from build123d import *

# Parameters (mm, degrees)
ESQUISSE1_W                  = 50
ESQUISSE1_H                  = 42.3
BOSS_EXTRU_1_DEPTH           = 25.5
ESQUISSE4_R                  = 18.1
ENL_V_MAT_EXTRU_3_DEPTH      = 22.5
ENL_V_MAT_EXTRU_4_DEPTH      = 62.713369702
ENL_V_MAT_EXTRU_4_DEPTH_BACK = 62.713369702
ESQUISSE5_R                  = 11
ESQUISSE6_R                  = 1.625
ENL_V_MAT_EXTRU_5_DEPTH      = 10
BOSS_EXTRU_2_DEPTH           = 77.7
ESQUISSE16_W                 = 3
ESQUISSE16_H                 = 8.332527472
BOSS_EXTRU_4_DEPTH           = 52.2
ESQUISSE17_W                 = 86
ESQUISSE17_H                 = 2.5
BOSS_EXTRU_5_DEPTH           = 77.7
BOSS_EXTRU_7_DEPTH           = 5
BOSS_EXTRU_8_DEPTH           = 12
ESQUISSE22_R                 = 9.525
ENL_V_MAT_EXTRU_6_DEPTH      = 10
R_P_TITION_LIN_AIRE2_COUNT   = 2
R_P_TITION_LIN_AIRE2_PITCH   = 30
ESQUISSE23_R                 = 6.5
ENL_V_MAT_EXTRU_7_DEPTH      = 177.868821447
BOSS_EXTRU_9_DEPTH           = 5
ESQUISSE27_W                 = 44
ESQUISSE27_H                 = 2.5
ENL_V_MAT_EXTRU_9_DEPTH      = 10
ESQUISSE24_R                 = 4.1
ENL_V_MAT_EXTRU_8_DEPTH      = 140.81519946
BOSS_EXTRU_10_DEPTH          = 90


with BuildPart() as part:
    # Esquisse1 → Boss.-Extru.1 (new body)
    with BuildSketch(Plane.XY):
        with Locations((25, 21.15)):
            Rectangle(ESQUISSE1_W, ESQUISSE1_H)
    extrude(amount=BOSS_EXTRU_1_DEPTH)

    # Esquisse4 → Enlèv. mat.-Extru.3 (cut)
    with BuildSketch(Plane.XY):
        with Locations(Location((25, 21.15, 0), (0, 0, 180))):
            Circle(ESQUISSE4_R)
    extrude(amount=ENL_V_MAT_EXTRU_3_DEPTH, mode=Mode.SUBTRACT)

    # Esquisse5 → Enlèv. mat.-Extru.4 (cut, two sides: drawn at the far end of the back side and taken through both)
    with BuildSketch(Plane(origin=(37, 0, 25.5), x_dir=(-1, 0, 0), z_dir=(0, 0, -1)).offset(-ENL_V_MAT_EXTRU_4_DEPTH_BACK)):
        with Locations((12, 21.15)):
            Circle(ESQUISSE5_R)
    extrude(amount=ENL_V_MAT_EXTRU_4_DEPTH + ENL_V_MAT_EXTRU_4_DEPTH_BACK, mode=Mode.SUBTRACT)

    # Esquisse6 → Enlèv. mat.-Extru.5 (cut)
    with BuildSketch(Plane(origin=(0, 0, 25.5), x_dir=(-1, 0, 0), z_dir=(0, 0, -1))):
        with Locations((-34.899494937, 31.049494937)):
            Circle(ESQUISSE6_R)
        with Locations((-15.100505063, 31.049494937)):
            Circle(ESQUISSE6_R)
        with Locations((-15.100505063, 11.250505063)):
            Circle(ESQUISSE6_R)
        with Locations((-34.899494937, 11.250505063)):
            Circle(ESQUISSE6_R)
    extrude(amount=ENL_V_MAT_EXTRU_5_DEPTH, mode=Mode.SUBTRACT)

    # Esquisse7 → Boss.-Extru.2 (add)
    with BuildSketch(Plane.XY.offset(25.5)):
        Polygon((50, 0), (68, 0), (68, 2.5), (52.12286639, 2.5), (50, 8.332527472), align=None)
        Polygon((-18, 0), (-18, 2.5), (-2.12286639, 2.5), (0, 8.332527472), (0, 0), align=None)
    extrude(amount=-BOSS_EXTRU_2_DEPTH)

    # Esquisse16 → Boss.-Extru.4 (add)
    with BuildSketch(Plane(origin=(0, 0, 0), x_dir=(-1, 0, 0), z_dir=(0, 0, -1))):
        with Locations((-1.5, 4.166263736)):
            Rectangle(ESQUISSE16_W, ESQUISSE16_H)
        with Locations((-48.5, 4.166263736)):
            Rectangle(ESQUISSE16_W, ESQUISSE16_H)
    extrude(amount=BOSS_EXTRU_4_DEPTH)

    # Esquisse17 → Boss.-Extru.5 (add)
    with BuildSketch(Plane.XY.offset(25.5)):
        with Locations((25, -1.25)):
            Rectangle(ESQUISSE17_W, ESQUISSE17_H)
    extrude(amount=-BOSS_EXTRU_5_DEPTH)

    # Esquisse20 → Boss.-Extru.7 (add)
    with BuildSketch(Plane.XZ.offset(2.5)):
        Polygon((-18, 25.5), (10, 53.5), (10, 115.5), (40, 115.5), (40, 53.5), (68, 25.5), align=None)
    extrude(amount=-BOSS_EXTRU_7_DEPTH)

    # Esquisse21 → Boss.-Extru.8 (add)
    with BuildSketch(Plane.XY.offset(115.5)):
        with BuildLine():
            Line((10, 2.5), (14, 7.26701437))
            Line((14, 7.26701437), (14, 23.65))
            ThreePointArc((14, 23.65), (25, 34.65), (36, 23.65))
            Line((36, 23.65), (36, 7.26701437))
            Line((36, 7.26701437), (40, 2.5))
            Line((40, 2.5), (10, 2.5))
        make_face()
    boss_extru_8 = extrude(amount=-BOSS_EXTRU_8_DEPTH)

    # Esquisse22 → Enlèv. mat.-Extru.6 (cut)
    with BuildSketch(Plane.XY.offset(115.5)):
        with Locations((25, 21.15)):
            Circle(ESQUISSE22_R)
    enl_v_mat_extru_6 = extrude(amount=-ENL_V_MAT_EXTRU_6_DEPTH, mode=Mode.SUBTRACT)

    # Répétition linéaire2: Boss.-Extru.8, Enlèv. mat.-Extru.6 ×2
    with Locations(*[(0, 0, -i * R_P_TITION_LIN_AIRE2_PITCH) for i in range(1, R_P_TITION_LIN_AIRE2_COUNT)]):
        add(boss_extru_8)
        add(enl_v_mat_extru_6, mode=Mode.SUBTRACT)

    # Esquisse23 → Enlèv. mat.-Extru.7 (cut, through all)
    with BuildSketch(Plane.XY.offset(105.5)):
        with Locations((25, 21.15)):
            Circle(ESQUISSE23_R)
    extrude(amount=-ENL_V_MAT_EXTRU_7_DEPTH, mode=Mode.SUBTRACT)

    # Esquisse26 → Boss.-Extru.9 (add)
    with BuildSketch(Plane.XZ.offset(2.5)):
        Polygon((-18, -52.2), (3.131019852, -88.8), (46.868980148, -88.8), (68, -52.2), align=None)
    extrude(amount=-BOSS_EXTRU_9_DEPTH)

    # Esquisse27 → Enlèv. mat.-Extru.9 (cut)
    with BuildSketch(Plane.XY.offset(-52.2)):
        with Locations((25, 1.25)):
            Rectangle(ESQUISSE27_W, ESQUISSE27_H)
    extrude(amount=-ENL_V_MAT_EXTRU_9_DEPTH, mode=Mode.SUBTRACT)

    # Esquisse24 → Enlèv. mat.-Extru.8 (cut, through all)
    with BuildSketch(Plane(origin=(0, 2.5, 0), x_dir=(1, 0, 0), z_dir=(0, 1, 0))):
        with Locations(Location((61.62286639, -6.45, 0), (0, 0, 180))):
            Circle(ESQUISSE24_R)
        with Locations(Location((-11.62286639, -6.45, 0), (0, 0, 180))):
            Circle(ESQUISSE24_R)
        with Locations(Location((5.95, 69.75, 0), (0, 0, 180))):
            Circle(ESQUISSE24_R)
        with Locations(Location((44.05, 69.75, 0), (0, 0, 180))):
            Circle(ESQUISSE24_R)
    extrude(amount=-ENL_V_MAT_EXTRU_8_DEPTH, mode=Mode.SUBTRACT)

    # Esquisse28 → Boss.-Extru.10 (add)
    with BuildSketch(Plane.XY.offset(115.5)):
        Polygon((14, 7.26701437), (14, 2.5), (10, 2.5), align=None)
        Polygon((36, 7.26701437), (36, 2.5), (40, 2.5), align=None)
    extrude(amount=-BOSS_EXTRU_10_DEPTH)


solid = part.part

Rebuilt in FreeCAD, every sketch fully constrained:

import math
import FreeCAD as App
import Part
import Sketcher

V = App.Vector
Q = App.Units.Quantity

doc = App.newDocument("Part")
params = doc.addObject("Spreadsheet::Sheet", "Params")
for row, (alias, value) in enumerate([
    ("sketch1_width", "50 mm"),
    ("sketch1_height", "42.3 mm"),
    ("pad1_length", "25.5 mm"),
    ("sketch2_diameter", "36.2 mm"),
    ("pocket1_length", "22.5 mm"),
    ("sketch3_diameter", "22 mm"),
    ("sketch4_diameter", "3.25 mm"),
    ("pocket3_length", "10 mm"),
    ("sketch5_width", "18 mm"),
    ("sketch5_height", "2.5 mm"),
    ("pad2_length", "77.7 mm"),
    ("sketch6_width", "3 mm"),
    ("pad3_length", "52.2 mm"),
    ("sketch7_width", "86 mm"),
    ("sketch7_height", "2.5 mm"),
    ("pad4_length", "77.7 mm"),
    ("sketch8_width", "86 mm"),
    ("sketch8_width2", "30 mm"),
    ("sketch8_height", "62 mm"),
    ("pad5_length", "5 mm"),
    ("sketch9_radius", "11 mm"),
    ("sketch9_width", "30 mm"),
    ("pad6_length", "12 mm"),
    ("sketch10_diameter", "19.05 mm"),
    ("pocket4_length", "10 mm"),
    ("linearpattern_pitch", "30 mm"),
    ("sketch11_diameter", "13 mm"),
    ("sketch12_width", "86 mm"),
    ("pad7_length", "5 mm"),
    ("sketch13_width", "44 mm"),
    ("sketch13_height", "2.5 mm"),
    ("pocket6_length", "10 mm"),
    ("sketch14_diameter", "8.2 mm"),
    ("sketch15_width", "4 mm"),
    ("pad8_length", "90 mm"),
], start=1):
    params.set(f"A{row}", alias)
    params.set(f"B{row}", "=" + value)
    params.setAlias(f"B{row}", alias)

body = doc.addObject("PartDesign::Body", "Body")

sketch1 = body.newObject("Sketcher::SketchObject", "Sketch")
sketch1.AttachmentSupport = (doc.getObject("XY_Plane"), [""])
sketch1.MapMode = "FlatFace"
sketch1.addGeometry([
    Part.LineSegment(V(0, 42.3, 0), V(0, 0, 0)),
    Part.LineSegment(V(0, 0, 0), V(50, 0, 0)),
    Part.LineSegment(V(50, 0, 0), V(50, 42.3, 0)),
    Part.LineSegment(V(50, 42.3, 0), V(0, 42.3, 0)),
], False)
sketch1.addConstraint([
    Sketcher.Constraint("Coincident", 0, 2, 1, 1),
    Sketcher.Constraint("Coincident", 1, 2, 2, 1),
    Sketcher.Constraint("Coincident", 2, 2, 3, 1),
    Sketcher.Constraint("Coincident", 3, 2, 0, 1),
    Sketcher.Constraint("Vertical", 0),
    Sketcher.Constraint("Horizontal", 1),
    Sketcher.Constraint("Vertical", 2),
    Sketcher.Constraint("Horizontal", 3),
    Sketcher.Constraint("Coincident", 0, 2, -1, 1),
    Sketcher.Constraint("DistanceX", 1, 1, 1, 2, Q("50 mm")),
    Sketcher.Constraint("DistanceY", 0, 2, 0, 1, Q("42.3 mm")),
])
sketch1.setExpression("Constraints[9]", "Params.sketch1_width")
sketch1.setExpression("Constraints[10]", "Params.sketch1_height")
pad1 = body.newObject("PartDesign::Pad", "Pad")
pad1.Profile = sketch1
pad1.setExpression("Length", "Params.pad1_length")

sketch2 = body.newObject("Sketcher::SketchObject", "Sketch001")
sketch2.AttachmentSupport = (doc.getObject("XY_Plane"), [""])
sketch2.MapMode = "FlatFace"
sketch2.addGeometry(Part.Circle(V(25, 21.15, 0), V(0, 0, 1), 18.1), False)
sketch2.addConstraint([
    Sketcher.Constraint("Diameter", 0, Q("36.2 mm")),
    Sketcher.Constraint("DistanceX", -1, 1, 0, 3, Q("25 mm")),
    Sketcher.Constraint("DistanceY", -1, 1, 0, 3, Q("21.15 mm")),
])
sketch2.setExpression("Constraints[0]", "Params.sketch2_diameter")
pocket1 = body.newObject("PartDesign::Pocket", "Pocket")
pocket1.Profile = sketch2
pocket1.setExpression("Length", "Params.pocket1_length")
pocket1.Reversed = True

sketch3 = body.newObject("Sketcher::SketchObject", "Sketch002")
sketch3.AttachmentSupport = (doc.getObject("XY_Plane"), [""])
sketch3.MapMode = "FlatFace"
sketch3.AttachmentOffset = App.Placement(V(0, 0, 25.5), App.Rotation())
sketch3.addGeometry(Part.Circle(V(25, 21.15, 0), V(0, 0, 1), 11), False)
sketch3.addConstraint([
    Sketcher.Constraint("Diameter", 0, Q("22 mm")),
    Sketcher.Constraint("DistanceX", -1, 1, 0, 3, Q("25 mm")),
    Sketcher.Constraint("DistanceY", -1, 1, 0, 3, Q("21.15 mm")),
])
sketch3.setExpression("Constraints[0]", "Params.sketch3_diameter")
pocket2 = body.newObject("PartDesign::Pocket", "Pocket001")
pocket2.Profile = sketch3
pocket2.Type = "ThroughAll"
pocket2.Midplane = True

sketch4 = body.newObject("Sketcher::SketchObject", "Sketch003")
sketch4.AttachmentSupport = (doc.getObject("XY_Plane"), [""])
sketch4.MapMode = "FlatFace"
sketch4.AttachmentOffset = App.Placement(V(0, 0, 25.5), App.Rotation())
sketch4.addGeometry([
    Part.Circle(V(34.899495, 31.049495, 0), V(0, 0, 1), 1.625),
    Part.Circle(V(15.100505, 31.049495, 0), V(0, 0, 1), 1.625),
    Part.Circle(V(15.100505, 11.250505, 0), V(0, 0, 1), 1.625),
    Part.Circle(V(34.899495, 11.250505, 0), V(0, 0, 1), 1.625),
], False)
sketch4.addConstraint([
    Sketcher.Constraint("Equal", 0, 1),
    Sketcher.Constraint("Equal", 1, 2),
    Sketcher.Constraint("Equal", 2, 3),
    Sketcher.Constraint("Horizontal", 0, 3, 1, 3),
    Sketcher.Constraint("Horizontal", 2, 3, 3, 3),
    Sketcher.Constraint("Vertical", 1, 3, 2, 3),
    Sketcher.Constraint("Vertical", 0, 3, 3, 3),
    Sketcher.Constraint("Diameter", 0, Q("3.25 mm")),
    Sketcher.Constraint("DistanceX", 1, 3, 0, 3, Q("19.79899 mm")),
    Sketcher.Constraint("DistanceY", 2, 3, 1, 3, Q("19.79899 mm")),
    Sketcher.Constraint("DistanceX", -1, 1, 0, 3, Q("34.899495 mm")),
    Sketcher.Constraint("DistanceY", -1, 1, 0, 3, Q("31.049495 mm")),
])
sketch4.setExpression("Constraints[7]", "Params.sketch4_diameter")
pocket3 = body.newObject("PartDesign::Pocket", "Pocket002")
pocket3.Profile = sketch4
pocket3.setExpression("Length", "Params.pocket3_length")

sketch5 = body.newObject("Sketcher::SketchObject", "Sketch004")
sketch5.AttachmentSupport = (doc.getObject("XY_Plane"), [""])
sketch5.MapMode = "FlatFace"
sketch5.AttachmentOffset = App.Placement(V(0, 0, 25.5), App.Rotation())
sketch5.addGeometry([
    Part.LineSegment(V(50, 0, 0), V(68, 0, 0)),
    Part.LineSegment(V(68, 0, 0), V(68, 2.5, 0)),
    Part.LineSegment(V(68, 2.5, 0), V(52.122866, 2.5, 0)),
    Part.LineSegment(V(52.122866, 2.5, 0), V(50, 8.332527, 0)),
    Part.LineSegment(V(50, 8.332527, 0), V(50, 0, 0)),
    Part.LineSegment(V(-18, 2.5, 0), V(-18, 0, 0)),
    Part.LineSegment(V(-18, 0, 0), V(0, 0, 0)),
    Part.LineSegment(V(0, 0, 0), V(0, 8.332527, 0)),
    Part.LineSegment(V(0, 8.332527, 0), V(-2.122866, 2.5, 0)),
    Part.LineSegment(V(-2.122866, 2.5, 0), V(-18, 2.5, 0)),
], False)
sketch5.addConstraint([
    Sketcher.Constraint("Coincident", 0, 2, 1, 1),
    Sketcher.Constraint("Coincident", 1, 2, 2, 1),
    Sketcher.Constraint("Coincident", 2, 2, 3, 1),
    Sketcher.Constraint("Coincident", 3, 2, 4, 1),
    Sketcher.Constraint("Coincident", 4, 2, 0, 1),
    Sketcher.Constraint("Coincident", 5, 2, 6, 1),
    Sketcher.Constraint("Coincident", 6, 2, 7, 1),
    Sketcher.Constraint("Coincident", 7, 2, 8, 1),
    Sketcher.Constraint("Coincident", 8, 2, 9, 1),
    Sketcher.Constraint("Coincident", 9, 2, 5, 1),
    Sketcher.Constraint("Horizontal", 0),
    Sketcher.Constraint("Vertical", 1),
    Sketcher.Constraint("Horizontal", 2),
    Sketcher.Constraint("Vertical", 4),
    Sketcher.Constraint("Vertical", 5),
    Sketcher.Constraint("Horizontal", 6),
    Sketcher.Constraint("Vertical", 7),
    Sketcher.Constraint("Horizontal", 9),
    Sketcher.Constraint("Coincident", 6, 2, -1, 1),
    Sketcher.Constraint("PointOnObject", 0, 2, -1),
    Sketcher.Constraint("Horizontal", 3, 2, 7, 2),
    Sketcher.Constraint("Horizontal", 2, 2, 8, 2),
    Sketcher.Constraint("Equal", 0, 6),
    Sketcher.Constraint("Equal", 2, 9),
    Sketcher.Constraint("DistanceX", 0, 1, 0, 2, Q("18 mm")),
    Sketcher.Constraint("Angle", 3, Q("110 deg")),
    Sketcher.Constraint("DistanceY", 1, 1, 1, 2, Q("2.5 mm")),
    Sketcher.Constraint("DistanceX", -1, 1, 0, 2, Q("68 mm")),
    Sketcher.Constraint("DistanceX", 2, 2, 2, 1, Q("15.877134 mm")),
])
sketch5.setExpression("Constraints[24]", "Params.sketch5_width")
sketch5.setExpression("Constraints[26]", "Params.sketch5_height")
pad2 = body.newObject("PartDesign::Pad", "Pad001")
pad2.Profile = sketch5
pad2.setExpression("Length", "Params.pad2_length")
pad2.Reversed = True

sketch6 = body.newObject("Sketcher::SketchObject", "Sketch005")
sketch6.AttachmentSupport = (doc.getObject("XY_Plane"), [""])
sketch6.MapMode = "FlatFace"
sketch6.addGeometry([
    Part.LineSegment(V(3, 8.332527, 0), V(3, 0, 0)),
    Part.LineSegment(V(3, 0, 0), V(0, 0, 0)),
    Part.LineSegment(V(0, 0, 0), V(0, 8.332527, 0)),
    Part.LineSegment(V(0, 8.332527, 0), V(3, 8.332527, 0)),
    Part.LineSegment(V(50, 8.332527, 0), V(50, 0, 0)),
    Part.LineSegment(V(50, 0, 0), V(47, 0, 0)),
    Part.LineSegment(V(47, 0, 0), V(47, 8.332527, 0)),
    Part.LineSegment(V(47, 8.332527, 0), V(50, 8.332527, 0)),
], False)
sketch6.addConstraint([
    Sketcher.Constraint("Coincident", 0, 2, 1, 1),
    Sketcher.Constraint("Coincident", 1, 2, 2, 1),
    Sketcher.Constraint("Coincident", 2, 2, 3, 1),
    Sketcher.Constraint("Coincident", 3, 2, 0, 1),
    Sketcher.Constraint("Coincident", 4, 2, 5, 1),
    Sketcher.Constraint("Coincident", 5, 2, 6, 1),
    Sketcher.Constraint("Coincident", 6, 2, 7, 1),
    Sketcher.Constraint("Coincident", 7, 2, 4, 1),
    Sketcher.Constraint("Vertical", 0),
    Sketcher.Constraint("Horizontal", 1),
    Sketcher.Constraint("Vertical", 2),
    Sketcher.Constraint("Horizontal", 3),
    Sketcher.Constraint("Vertical", 4),
    Sketcher.Constraint("Horizontal", 5),
    Sketcher.Constraint("Vertical", 6),
    Sketcher.Constraint("Horizontal", 7),
    Sketcher.Constraint("Coincident", 1, 2, -1, 1),
    Sketcher.Constraint("PointOnObject", 4, 2, -1),
    Sketcher.Constraint("Horizontal", 3, 2, 6, 2),
    Sketcher.Constraint("Equal", 3, 5),
    Sketcher.Constraint("DistanceX", 1, 2, 1, 1, Q("3 mm")),
    Sketcher.Constraint("DistanceX", -1, 1, 4, 2, Q("50 mm")),
    Sketcher.Constraint("DistanceY", 0, 2, 0, 1, Q("8.332527 mm")),
])
sketch6.setExpression("Constraints[20]", "Params.sketch6_width")
pad3 = body.newObject("PartDesign::Pad", "Pad002")
pad3.Profile = sketch6
pad3.setExpression("Length", "Params.pad3_length")
pad3.Reversed = True

sketch7 = body.newObject("Sketcher::SketchObject", "Sketch006")
sketch7.AttachmentSupport = (doc.getObject("XY_Plane"), [""])
sketch7.MapMode = "FlatFace"
sketch7.AttachmentOffset = App.Placement(V(0, 0, 25.5), App.Rotation())
sketch7.addGeometry([
    Part.LineSegment(V(-18, 0, 0), V(-18, -2.5, 0)),
    Part.LineSegment(V(-18, -2.5, 0), V(68, -2.5, 0)),
    Part.LineSegment(V(68, -2.5, 0), V(68, 0, 0)),
    Part.LineSegment(V(68, 0, 0), V(-18, 0, 0)),
], False)
sketch7.addConstraint([
    Sketcher.Constraint("Coincident", 0, 2, 1, 1),
    Sketcher.Constraint("Coincident", 1, 2, 2, 1),
    Sketcher.Constraint("Coincident", 2, 2, 3, 1),
    Sketcher.Constraint("Coincident", 3, 2, 0, 1),
    Sketcher.Constraint("Vertical", 0),
    Sketcher.Constraint("Horizontal", 1),
    Sketcher.Constraint("Vertical", 2),
    Sketcher.Constraint("Horizontal", 3),
    Sketcher.Constraint("PointOnObject", 2, 2, -1),
    Sketcher.Constraint("DistanceX", 1, 1, 1, 2, Q("86 mm")),
    Sketcher.Constraint("DistanceY", 0, 2, 0, 1, Q("2.5 mm")),
    Sketcher.Constraint("DistanceX", 0, 2, -1, 1, Q("18 mm")),
])
sketch7.setExpression("Constraints[9]", "Params.sketch7_width")
sketch7.setExpression("Constraints[10]", "Params.sketch7_height")
pad4 = body.newObject("PartDesign::Pad", "Pad003")
pad4.Profile = sketch7
pad4.setExpression("Length", "Params.pad4_length")
pad4.Reversed = True

sketch8 = body.newObject("Sketcher::SketchObject", "Sketch007")
sketch8.AttachmentSupport = (doc.getObject("XZ_Plane"), [""])
sketch8.MapMode = "FlatFace"
sketch8.AttachmentOffset = App.Placement(V(0, 0, 2.5), App.Rotation())
sketch8.addGeometry([
    Part.LineSegment(V(10, 53.5, 0), V(-18, 25.5, 0)),
    Part.LineSegment(V(-18, 25.5, 0), V(68, 25.5, 0)),
    Part.LineSegment(V(68, 25.5, 0), V(40, 53.5, 0)),
    Part.LineSegment(V(40, 53.5, 0), V(40, 115.5, 0)),
    Part.LineSegment(V(40, 115.5, 0), V(10, 115.5, 0)),
    Part.LineSegment(V(10, 115.5, 0), V(10, 53.5, 0)),
], False)
sketch8.addConstraint([
    Sketcher.Constraint("Coincident", 0, 2, 1, 1),
    Sketcher.Constraint("Coincident", 1, 2, 2, 1),
    Sketcher.Constraint("Coincident", 2, 2, 3, 1),
    Sketcher.Constraint("Coincident", 3, 2, 4, 1),
    Sketcher.Constraint("Coincident", 4, 2, 5, 1),
    Sketcher.Constraint("Coincident", 5, 2, 0, 1),
    Sketcher.Constraint("Horizontal", 1),
    Sketcher.Constraint("Vertical", 3),
    Sketcher.Constraint("Horizontal", 4),
    Sketcher.Constraint("Vertical", 5),
    Sketcher.Constraint("Perpendicular", 0, 2),
    Sketcher.Constraint("Horizontal", 2, 2, 5, 2),
    Sketcher.Constraint("Equal", 0, 2),
    Sketcher.Constraint("DistanceX", 1, 1, 1, 2, Q("86 mm")),
    Sketcher.Constraint("DistanceX", 4, 2, 4, 1, Q("30 mm")),
    Sketcher.Constraint("DistanceY", 3, 1, 3, 2, Q("62 mm")),
    Sketcher.Constraint("DistanceX", 0, 2, -1, 1, Q("18 mm")),
    Sketcher.Constraint("DistanceY", -1, 1, 0, 2, Q("25.5 mm")),
])
sketch8.setExpression("Constraints[13]", "Params.sketch8_width")
sketch8.setExpression("Constraints[14]", "Params.sketch8_width2")
sketch8.setExpression("Constraints[15]", "Params.sketch8_height")
pad5 = body.newObject("PartDesign::Pad", "Pad004")
pad5.Profile = sketch8
pad5.setExpression("Length", "Params.pad5_length")
pad5.Reversed = True

sketch9 = body.newObject("Sketcher::SketchObject", "Sketch008")
sketch9.AttachmentSupport = (doc.getObject("XY_Plane"), [""])
sketch9.MapMode = "FlatFace"
sketch9.AttachmentOffset = App.Placement(V(0, 0, 115.5), App.Rotation())
sketch9.addGeometry([
    Part.LineSegment(V(14, 7.267014, 0), V(10, 2.5, 0)),
    Part.LineSegment(V(10, 2.5, 0), V(40, 2.5, 0)),
    Part.LineSegment(V(40, 2.5, 0), V(36, 7.267014, 0)),
    Part.LineSegment(V(36, 7.267014, 0), V(36, 23.65, 0)),
    Part.ArcOfCircle(Part.Circle(V(25, 23.65, 0), V(0, 0, 1), 11), math.radians(0), math.radians(180)),
    Part.LineSegment(V(14, 23.65, 0), V(14, 7.267014, 0)),
], False)
sketch9.addConstraint([
    Sketcher.Constraint("Coincident", 0, 2, 1, 1),
    Sketcher.Constraint("Coincident", 1, 2, 2, 1),
    Sketcher.Constraint("Coincident", 2, 2, 3, 1),
    Sketcher.Constraint("Tangent", 3, 2, 4, 1),
    Sketcher.Constraint("Tangent", 4, 2, 5, 1),
    Sketcher.Constraint("Coincident", 5, 2, 0, 1),
    Sketcher.Constraint("Horizontal", 1),
    Sketcher.Constraint("Vertical", 3),
    Sketcher.Constraint("Vertical", 5),
    Sketcher.Constraint("Horizontal", 2, 2, 5, 2),
    Sketcher.Constraint("Equal", 0, 2),
    Sketcher.Constraint("Radius", 4, Q("11 mm")),
    Sketcher.Constraint("DistanceX", 1, 1, 1, 2, Q("30 mm")),
    Sketcher.Constraint("Angle", 0, Q("-130 deg")),
    Sketcher.Constraint("DistanceX", -1, 1, 4, 3, Q("25 mm")),
    Sketcher.Constraint("DistanceY", -1, 1, 0, 2, Q("2.5 mm")),
    Sketcher.Constraint("DistanceY", -1, 1, 4, 3, Q("23.65 mm")),
])
sketch9.setExpression("Constraints[11]", "Params.sketch9_radius")
sketch9.setExpression("Constraints[12]", "Params.sketch9_width")
pad6 = body.newObject("PartDesign::Pad", "Pad005")
pad6.Profile = sketch9
pad6.setExpression("Length", "Params.pad6_length")
pad6.Reversed = True

sketch10 = body.newObject("Sketcher::SketchObject", "Sketch009")
sketch10.AttachmentSupport = (doc.getObject("XY_Plane"), [""])
sketch10.MapMode = "FlatFace"
sketch10.AttachmentOffset = App.Placement(V(0, 0, 115.5), App.Rotation())
sketch10.addGeometry(Part.Circle(V(25, 21.15, 0), V(0, 0, 1), 9.525), False)
sketch10.addConstraint([
    Sketcher.Constraint("Diameter", 0, Q("19.05 mm")),
    Sketcher.Constraint("DistanceX", -1, 1, 0, 3, Q("25 mm")),
    Sketcher.Constraint("DistanceY", -1, 1, 0, 3, Q("21.15 mm")),
])
sketch10.setExpression("Constraints[0]", "Params.sketch10_diameter")
pocket4 = body.newObject("PartDesign::Pocket", "Pocket003")
pocket4.Profile = sketch10
pocket4.setExpression("Length", "Params.pocket4_length")
doc.recompute()

linearpattern = body.newObject("PartDesign::LinearPattern", "LinearPattern")
linearpattern.Originals = [pad6, pocket4]
linearpattern.Direction = (doc.getObject("Z_Axis"), [""])
linearpattern.Mode = "offset"
linearpattern.setExpression("Offset", "Params.linearpattern_pitch")
linearpattern.Occurrences = 2
linearpattern.Reversed = True
body.Tip = linearpattern

sketch11 = body.newObject("Sketcher::SketchObject", "Sketch010")
sketch11.AttachmentSupport = (doc.getObject("XY_Plane"), [""])
sketch11.MapMode = "FlatFace"
sketch11.AttachmentOffset = App.Placement(V(0, 0, 105.5), App.Rotation())
sketch11.addGeometry(Part.Circle(V(25, 21.15, 0), V(0, 0, 1), 6.5), False)
sketch11.addConstraint([
    Sketcher.Constraint("Diameter", 0, Q("13 mm")),
    Sketcher.Constraint("DistanceX", -1, 1, 0, 3, Q("25 mm")),
    Sketcher.Constraint("DistanceY", -1, 1, 0, 3, Q("21.15 mm")),
])
sketch11.setExpression("Constraints[0]", "Params.sketch11_diameter")
pocket5 = body.newObject("PartDesign::Pocket", "Pocket004")
pocket5.Profile = sketch11
pocket5.Type = "ThroughAll"

sketch12 = body.newObject("Sketcher::SketchObject", "Sketch011")
sketch12.AttachmentSupport = (doc.getObject("XZ_Plane"), [""])
sketch12.MapMode = "FlatFace"
sketch12.AttachmentOffset = App.Placement(V(0, 0, 2.5), App.Rotation())
sketch12.addGeometry([
    Part.LineSegment(V(-18, -52.2, 0), V(3.13102, -88.8, 0)),
    Part.LineSegment(V(3.13102, -88.8, 0), V(46.86898, -88.8, 0)),
    Part.LineSegment(V(46.86898, -88.8, 0), V(68, -52.2, 0)),
    Part.LineSegment(V(68, -52.2, 0), V(-18, -52.2, 0)),
], False)
sketch12.addConstraint([
    Sketcher.Constraint("Coincident", 0, 2, 1, 1),
    Sketcher.Constraint("Coincident", 1, 2, 2, 1),
    Sketcher.Constraint("Coincident", 2, 2, 3, 1),
    Sketcher.Constraint("Coincident", 3, 2, 0, 1),
    Sketcher.Constraint("Horizontal", 1),
    Sketcher.Constraint("Horizontal", 3),
    Sketcher.Constraint("Equal", 0, 2),
    Sketcher.Constraint("DistanceX", 3, 2, 3, 1, Q("86 mm")),
    Sketcher.Constraint("Angle", 0, Q("-60 deg")),
    Sketcher.Constraint("DistanceX", -1, 1, 2, 2, Q("68 mm")),
    Sketcher.Constraint("DistanceY", 0, 2, -1, 1, Q("88.8 mm")),
    Sketcher.Constraint("DistanceY", 2, 2, -1, 1, Q("52.2 mm")),
])
sketch12.setExpression("Constraints[7]", "Params.sketch12_width")
pad7 = body.newObject("PartDesign::Pad", "Pad006")
pad7.Profile = sketch12
pad7.setExpression("Length", "Params.pad7_length")
pad7.Reversed = True

sketch13 = body.newObject("Sketcher::SketchObject", "Sketch012")
sketch13.AttachmentSupport = (doc.getObject("XY_Plane"), [""])
sketch13.MapMode = "FlatFace"
sketch13.AttachmentOffset = App.Placement(V(0, 0, -52.2), App.Rotation())
sketch13.addGeometry([
    Part.LineSegment(V(3, 2.5, 0), V(3, 0, 0)),
    Part.LineSegment(V(3, 0, 0), V(47, 0, 0)),
    Part.LineSegment(V(47, 0, 0), V(47, 2.5, 0)),
    Part.LineSegment(V(47, 2.5, 0), V(3, 2.5, 0)),
], False)
sketch13.addConstraint([
    Sketcher.Constraint("Coincident", 0, 2, 1, 1),
    Sketcher.Constraint("Coincident", 1, 2, 2, 1),
    Sketcher.Constraint("Coincident", 2, 2, 3, 1),
    Sketcher.Constraint("Coincident", 3, 2, 0, 1),
    Sketcher.Constraint("Vertical", 0),
    Sketcher.Constraint("Horizontal", 1),
    Sketcher.Constraint("Vertical", 2),
    Sketcher.Constraint("Horizontal", 3),
    Sketcher.Constraint("PointOnObject", 0, 2, -1),
    Sketcher.Constraint("DistanceX", 1, 1, 1, 2, Q("44 mm")),
    Sketcher.Constraint("DistanceY", 0, 2, 0, 1, Q("2.5 mm")),
    Sketcher.Constraint("DistanceX", -1, 1, 0, 2, Q("3 mm")),
])
sketch13.setExpression("Constraints[9]", "Params.sketch13_width")
sketch13.setExpression("Constraints[10]", "Params.sketch13_height")
pocket6 = body.newObject("PartDesign::Pocket", "Pocket005")
pocket6.Profile = sketch13
pocket6.setExpression("Length", "Params.pocket6_length")

sketch14 = body.newObject("Sketcher::SketchObject", "Sketch013")
sketch14.AttachmentSupport = (doc.getObject("XZ_Plane"), [""])
sketch14.MapMode = "FlatFace"
sketch14.AttachmentOffset = App.Placement(V(0, 0, -2.5), App.Rotation())
sketch14.addGeometry([
    Part.Circle(V(61.622866, 6.45, 0), V(0, 0, 1), 4.1),
    Part.Circle(V(-11.622866, 6.45, 0), V(0, 0, 1), 4.1),
    Part.Circle(V(5.95, -69.75, 0), V(0, 0, 1), 4.1),
    Part.Circle(V(44.05, -69.75, 0), V(0, 0, 1), 4.1),
], False)
sketch14.addConstraint([
    Sketcher.Constraint("Equal", 0, 1),
    Sketcher.Constraint("Equal", 1, 2),
    Sketcher.Constraint("Equal", 2, 3),
    Sketcher.Constraint("Horizontal", 0, 3, 1, 3),
    Sketcher.Constraint("Horizontal", 2, 3, 3, 3),
    Sketcher.Constraint("Diameter", 0, Q("8.2 mm")),
    Sketcher.Constraint("DistanceY", 2, 3, 1, 3, Q("76.2 mm")),
    Sketcher.Constraint("DistanceX", 2, 3, 3, 3, Q("38.1 mm")),
    Sketcher.Constraint("DistanceY", -1, 1, 0, 3, Q("6.45 mm")),
    Sketcher.Constraint("DistanceX", -1, 1, 2, 3, Q("5.95 mm")),
    Sketcher.Constraint("DistanceX", -1, 1, 0, 3, Q("61.622866 mm")),
    Sketcher.Constraint("DistanceX", 1, 3, -1, 1, Q("11.622866 mm")),
])
sketch14.setExpression("Constraints[5]", "Params.sketch14_diameter")
pocket7 = body.newObject("PartDesign::Pocket", "Pocket006")
pocket7.Profile = sketch14
pocket7.Type = "ThroughAll"
pocket7.Reversed = True

sketch15 = body.newObject("Sketcher::SketchObject", "Sketch014")
sketch15.AttachmentSupport = (doc.getObject("XY_Plane"), [""])
sketch15.MapMode = "FlatFace"
sketch15.AttachmentOffset = App.Placement(V(0, 0, 115.5), App.Rotation())
sketch15.addGeometry([
    Part.LineSegment(V(14, 2.5, 0), V(14, 7.267014, 0)),
    Part.LineSegment(V(14, 7.267014, 0), V(10, 2.5, 0)),
    Part.LineSegment(V(10, 2.5, 0), V(14, 2.5, 0)),
    Part.LineSegment(V(36, 7.267014, 0), V(36, 2.5, 0)),
    Part.LineSegment(V(36, 2.5, 0), V(40, 2.5, 0)),
    Part.LineSegment(V(40, 2.5, 0), V(36, 7.267014, 0)),
], False)
sketch15.addConstraint([
    Sketcher.Constraint("Coincident", 0, 2, 1, 1),
    Sketcher.Constraint("Coincident", 1, 2, 2, 1),
    Sketcher.Constraint("Coincident", 2, 2, 0, 1),
    Sketcher.Constraint("Coincident", 3, 2, 4, 1),
    Sketcher.Constraint("Coincident", 4, 2, 5, 1),
    Sketcher.Constraint("Coincident", 5, 2, 3, 1),
    Sketcher.Constraint("Vertical", 0),
    Sketcher.Constraint("Horizontal", 2),
    Sketcher.Constraint("Vertical", 3),
    Sketcher.Constraint("Horizontal", 4),
    Sketcher.Constraint("Horizontal", 2, 2, 3, 2),
    Sketcher.Constraint("Horizontal", 0, 2, 5, 2),
    Sketcher.Constraint("Equal", 2, 4),
    Sketcher.Constraint("DistanceX", 2, 1, 2, 2, Q("4 mm")),
    Sketcher.Constraint("Angle", 1, Q("-130 deg")),
    Sketcher.Constraint("DistanceX", -1, 1, 0, 2, Q("14 mm")),
    Sketcher.Constraint("DistanceX", -1, 1, 3, 2, Q("36 mm")),
    Sketcher.Constraint("DistanceY", -1, 1, 1, 2, Q("2.5 mm")),
])
sketch15.setExpression("Constraints[13]", "Params.sketch15_width")
pad8 = body.newObject("PartDesign::Pad", "Pad007")
pad8.Profile = sketch15
pad8.setExpression("Length", "Params.pad8_length")
pad8.Reversed = True

doc.recompute()
